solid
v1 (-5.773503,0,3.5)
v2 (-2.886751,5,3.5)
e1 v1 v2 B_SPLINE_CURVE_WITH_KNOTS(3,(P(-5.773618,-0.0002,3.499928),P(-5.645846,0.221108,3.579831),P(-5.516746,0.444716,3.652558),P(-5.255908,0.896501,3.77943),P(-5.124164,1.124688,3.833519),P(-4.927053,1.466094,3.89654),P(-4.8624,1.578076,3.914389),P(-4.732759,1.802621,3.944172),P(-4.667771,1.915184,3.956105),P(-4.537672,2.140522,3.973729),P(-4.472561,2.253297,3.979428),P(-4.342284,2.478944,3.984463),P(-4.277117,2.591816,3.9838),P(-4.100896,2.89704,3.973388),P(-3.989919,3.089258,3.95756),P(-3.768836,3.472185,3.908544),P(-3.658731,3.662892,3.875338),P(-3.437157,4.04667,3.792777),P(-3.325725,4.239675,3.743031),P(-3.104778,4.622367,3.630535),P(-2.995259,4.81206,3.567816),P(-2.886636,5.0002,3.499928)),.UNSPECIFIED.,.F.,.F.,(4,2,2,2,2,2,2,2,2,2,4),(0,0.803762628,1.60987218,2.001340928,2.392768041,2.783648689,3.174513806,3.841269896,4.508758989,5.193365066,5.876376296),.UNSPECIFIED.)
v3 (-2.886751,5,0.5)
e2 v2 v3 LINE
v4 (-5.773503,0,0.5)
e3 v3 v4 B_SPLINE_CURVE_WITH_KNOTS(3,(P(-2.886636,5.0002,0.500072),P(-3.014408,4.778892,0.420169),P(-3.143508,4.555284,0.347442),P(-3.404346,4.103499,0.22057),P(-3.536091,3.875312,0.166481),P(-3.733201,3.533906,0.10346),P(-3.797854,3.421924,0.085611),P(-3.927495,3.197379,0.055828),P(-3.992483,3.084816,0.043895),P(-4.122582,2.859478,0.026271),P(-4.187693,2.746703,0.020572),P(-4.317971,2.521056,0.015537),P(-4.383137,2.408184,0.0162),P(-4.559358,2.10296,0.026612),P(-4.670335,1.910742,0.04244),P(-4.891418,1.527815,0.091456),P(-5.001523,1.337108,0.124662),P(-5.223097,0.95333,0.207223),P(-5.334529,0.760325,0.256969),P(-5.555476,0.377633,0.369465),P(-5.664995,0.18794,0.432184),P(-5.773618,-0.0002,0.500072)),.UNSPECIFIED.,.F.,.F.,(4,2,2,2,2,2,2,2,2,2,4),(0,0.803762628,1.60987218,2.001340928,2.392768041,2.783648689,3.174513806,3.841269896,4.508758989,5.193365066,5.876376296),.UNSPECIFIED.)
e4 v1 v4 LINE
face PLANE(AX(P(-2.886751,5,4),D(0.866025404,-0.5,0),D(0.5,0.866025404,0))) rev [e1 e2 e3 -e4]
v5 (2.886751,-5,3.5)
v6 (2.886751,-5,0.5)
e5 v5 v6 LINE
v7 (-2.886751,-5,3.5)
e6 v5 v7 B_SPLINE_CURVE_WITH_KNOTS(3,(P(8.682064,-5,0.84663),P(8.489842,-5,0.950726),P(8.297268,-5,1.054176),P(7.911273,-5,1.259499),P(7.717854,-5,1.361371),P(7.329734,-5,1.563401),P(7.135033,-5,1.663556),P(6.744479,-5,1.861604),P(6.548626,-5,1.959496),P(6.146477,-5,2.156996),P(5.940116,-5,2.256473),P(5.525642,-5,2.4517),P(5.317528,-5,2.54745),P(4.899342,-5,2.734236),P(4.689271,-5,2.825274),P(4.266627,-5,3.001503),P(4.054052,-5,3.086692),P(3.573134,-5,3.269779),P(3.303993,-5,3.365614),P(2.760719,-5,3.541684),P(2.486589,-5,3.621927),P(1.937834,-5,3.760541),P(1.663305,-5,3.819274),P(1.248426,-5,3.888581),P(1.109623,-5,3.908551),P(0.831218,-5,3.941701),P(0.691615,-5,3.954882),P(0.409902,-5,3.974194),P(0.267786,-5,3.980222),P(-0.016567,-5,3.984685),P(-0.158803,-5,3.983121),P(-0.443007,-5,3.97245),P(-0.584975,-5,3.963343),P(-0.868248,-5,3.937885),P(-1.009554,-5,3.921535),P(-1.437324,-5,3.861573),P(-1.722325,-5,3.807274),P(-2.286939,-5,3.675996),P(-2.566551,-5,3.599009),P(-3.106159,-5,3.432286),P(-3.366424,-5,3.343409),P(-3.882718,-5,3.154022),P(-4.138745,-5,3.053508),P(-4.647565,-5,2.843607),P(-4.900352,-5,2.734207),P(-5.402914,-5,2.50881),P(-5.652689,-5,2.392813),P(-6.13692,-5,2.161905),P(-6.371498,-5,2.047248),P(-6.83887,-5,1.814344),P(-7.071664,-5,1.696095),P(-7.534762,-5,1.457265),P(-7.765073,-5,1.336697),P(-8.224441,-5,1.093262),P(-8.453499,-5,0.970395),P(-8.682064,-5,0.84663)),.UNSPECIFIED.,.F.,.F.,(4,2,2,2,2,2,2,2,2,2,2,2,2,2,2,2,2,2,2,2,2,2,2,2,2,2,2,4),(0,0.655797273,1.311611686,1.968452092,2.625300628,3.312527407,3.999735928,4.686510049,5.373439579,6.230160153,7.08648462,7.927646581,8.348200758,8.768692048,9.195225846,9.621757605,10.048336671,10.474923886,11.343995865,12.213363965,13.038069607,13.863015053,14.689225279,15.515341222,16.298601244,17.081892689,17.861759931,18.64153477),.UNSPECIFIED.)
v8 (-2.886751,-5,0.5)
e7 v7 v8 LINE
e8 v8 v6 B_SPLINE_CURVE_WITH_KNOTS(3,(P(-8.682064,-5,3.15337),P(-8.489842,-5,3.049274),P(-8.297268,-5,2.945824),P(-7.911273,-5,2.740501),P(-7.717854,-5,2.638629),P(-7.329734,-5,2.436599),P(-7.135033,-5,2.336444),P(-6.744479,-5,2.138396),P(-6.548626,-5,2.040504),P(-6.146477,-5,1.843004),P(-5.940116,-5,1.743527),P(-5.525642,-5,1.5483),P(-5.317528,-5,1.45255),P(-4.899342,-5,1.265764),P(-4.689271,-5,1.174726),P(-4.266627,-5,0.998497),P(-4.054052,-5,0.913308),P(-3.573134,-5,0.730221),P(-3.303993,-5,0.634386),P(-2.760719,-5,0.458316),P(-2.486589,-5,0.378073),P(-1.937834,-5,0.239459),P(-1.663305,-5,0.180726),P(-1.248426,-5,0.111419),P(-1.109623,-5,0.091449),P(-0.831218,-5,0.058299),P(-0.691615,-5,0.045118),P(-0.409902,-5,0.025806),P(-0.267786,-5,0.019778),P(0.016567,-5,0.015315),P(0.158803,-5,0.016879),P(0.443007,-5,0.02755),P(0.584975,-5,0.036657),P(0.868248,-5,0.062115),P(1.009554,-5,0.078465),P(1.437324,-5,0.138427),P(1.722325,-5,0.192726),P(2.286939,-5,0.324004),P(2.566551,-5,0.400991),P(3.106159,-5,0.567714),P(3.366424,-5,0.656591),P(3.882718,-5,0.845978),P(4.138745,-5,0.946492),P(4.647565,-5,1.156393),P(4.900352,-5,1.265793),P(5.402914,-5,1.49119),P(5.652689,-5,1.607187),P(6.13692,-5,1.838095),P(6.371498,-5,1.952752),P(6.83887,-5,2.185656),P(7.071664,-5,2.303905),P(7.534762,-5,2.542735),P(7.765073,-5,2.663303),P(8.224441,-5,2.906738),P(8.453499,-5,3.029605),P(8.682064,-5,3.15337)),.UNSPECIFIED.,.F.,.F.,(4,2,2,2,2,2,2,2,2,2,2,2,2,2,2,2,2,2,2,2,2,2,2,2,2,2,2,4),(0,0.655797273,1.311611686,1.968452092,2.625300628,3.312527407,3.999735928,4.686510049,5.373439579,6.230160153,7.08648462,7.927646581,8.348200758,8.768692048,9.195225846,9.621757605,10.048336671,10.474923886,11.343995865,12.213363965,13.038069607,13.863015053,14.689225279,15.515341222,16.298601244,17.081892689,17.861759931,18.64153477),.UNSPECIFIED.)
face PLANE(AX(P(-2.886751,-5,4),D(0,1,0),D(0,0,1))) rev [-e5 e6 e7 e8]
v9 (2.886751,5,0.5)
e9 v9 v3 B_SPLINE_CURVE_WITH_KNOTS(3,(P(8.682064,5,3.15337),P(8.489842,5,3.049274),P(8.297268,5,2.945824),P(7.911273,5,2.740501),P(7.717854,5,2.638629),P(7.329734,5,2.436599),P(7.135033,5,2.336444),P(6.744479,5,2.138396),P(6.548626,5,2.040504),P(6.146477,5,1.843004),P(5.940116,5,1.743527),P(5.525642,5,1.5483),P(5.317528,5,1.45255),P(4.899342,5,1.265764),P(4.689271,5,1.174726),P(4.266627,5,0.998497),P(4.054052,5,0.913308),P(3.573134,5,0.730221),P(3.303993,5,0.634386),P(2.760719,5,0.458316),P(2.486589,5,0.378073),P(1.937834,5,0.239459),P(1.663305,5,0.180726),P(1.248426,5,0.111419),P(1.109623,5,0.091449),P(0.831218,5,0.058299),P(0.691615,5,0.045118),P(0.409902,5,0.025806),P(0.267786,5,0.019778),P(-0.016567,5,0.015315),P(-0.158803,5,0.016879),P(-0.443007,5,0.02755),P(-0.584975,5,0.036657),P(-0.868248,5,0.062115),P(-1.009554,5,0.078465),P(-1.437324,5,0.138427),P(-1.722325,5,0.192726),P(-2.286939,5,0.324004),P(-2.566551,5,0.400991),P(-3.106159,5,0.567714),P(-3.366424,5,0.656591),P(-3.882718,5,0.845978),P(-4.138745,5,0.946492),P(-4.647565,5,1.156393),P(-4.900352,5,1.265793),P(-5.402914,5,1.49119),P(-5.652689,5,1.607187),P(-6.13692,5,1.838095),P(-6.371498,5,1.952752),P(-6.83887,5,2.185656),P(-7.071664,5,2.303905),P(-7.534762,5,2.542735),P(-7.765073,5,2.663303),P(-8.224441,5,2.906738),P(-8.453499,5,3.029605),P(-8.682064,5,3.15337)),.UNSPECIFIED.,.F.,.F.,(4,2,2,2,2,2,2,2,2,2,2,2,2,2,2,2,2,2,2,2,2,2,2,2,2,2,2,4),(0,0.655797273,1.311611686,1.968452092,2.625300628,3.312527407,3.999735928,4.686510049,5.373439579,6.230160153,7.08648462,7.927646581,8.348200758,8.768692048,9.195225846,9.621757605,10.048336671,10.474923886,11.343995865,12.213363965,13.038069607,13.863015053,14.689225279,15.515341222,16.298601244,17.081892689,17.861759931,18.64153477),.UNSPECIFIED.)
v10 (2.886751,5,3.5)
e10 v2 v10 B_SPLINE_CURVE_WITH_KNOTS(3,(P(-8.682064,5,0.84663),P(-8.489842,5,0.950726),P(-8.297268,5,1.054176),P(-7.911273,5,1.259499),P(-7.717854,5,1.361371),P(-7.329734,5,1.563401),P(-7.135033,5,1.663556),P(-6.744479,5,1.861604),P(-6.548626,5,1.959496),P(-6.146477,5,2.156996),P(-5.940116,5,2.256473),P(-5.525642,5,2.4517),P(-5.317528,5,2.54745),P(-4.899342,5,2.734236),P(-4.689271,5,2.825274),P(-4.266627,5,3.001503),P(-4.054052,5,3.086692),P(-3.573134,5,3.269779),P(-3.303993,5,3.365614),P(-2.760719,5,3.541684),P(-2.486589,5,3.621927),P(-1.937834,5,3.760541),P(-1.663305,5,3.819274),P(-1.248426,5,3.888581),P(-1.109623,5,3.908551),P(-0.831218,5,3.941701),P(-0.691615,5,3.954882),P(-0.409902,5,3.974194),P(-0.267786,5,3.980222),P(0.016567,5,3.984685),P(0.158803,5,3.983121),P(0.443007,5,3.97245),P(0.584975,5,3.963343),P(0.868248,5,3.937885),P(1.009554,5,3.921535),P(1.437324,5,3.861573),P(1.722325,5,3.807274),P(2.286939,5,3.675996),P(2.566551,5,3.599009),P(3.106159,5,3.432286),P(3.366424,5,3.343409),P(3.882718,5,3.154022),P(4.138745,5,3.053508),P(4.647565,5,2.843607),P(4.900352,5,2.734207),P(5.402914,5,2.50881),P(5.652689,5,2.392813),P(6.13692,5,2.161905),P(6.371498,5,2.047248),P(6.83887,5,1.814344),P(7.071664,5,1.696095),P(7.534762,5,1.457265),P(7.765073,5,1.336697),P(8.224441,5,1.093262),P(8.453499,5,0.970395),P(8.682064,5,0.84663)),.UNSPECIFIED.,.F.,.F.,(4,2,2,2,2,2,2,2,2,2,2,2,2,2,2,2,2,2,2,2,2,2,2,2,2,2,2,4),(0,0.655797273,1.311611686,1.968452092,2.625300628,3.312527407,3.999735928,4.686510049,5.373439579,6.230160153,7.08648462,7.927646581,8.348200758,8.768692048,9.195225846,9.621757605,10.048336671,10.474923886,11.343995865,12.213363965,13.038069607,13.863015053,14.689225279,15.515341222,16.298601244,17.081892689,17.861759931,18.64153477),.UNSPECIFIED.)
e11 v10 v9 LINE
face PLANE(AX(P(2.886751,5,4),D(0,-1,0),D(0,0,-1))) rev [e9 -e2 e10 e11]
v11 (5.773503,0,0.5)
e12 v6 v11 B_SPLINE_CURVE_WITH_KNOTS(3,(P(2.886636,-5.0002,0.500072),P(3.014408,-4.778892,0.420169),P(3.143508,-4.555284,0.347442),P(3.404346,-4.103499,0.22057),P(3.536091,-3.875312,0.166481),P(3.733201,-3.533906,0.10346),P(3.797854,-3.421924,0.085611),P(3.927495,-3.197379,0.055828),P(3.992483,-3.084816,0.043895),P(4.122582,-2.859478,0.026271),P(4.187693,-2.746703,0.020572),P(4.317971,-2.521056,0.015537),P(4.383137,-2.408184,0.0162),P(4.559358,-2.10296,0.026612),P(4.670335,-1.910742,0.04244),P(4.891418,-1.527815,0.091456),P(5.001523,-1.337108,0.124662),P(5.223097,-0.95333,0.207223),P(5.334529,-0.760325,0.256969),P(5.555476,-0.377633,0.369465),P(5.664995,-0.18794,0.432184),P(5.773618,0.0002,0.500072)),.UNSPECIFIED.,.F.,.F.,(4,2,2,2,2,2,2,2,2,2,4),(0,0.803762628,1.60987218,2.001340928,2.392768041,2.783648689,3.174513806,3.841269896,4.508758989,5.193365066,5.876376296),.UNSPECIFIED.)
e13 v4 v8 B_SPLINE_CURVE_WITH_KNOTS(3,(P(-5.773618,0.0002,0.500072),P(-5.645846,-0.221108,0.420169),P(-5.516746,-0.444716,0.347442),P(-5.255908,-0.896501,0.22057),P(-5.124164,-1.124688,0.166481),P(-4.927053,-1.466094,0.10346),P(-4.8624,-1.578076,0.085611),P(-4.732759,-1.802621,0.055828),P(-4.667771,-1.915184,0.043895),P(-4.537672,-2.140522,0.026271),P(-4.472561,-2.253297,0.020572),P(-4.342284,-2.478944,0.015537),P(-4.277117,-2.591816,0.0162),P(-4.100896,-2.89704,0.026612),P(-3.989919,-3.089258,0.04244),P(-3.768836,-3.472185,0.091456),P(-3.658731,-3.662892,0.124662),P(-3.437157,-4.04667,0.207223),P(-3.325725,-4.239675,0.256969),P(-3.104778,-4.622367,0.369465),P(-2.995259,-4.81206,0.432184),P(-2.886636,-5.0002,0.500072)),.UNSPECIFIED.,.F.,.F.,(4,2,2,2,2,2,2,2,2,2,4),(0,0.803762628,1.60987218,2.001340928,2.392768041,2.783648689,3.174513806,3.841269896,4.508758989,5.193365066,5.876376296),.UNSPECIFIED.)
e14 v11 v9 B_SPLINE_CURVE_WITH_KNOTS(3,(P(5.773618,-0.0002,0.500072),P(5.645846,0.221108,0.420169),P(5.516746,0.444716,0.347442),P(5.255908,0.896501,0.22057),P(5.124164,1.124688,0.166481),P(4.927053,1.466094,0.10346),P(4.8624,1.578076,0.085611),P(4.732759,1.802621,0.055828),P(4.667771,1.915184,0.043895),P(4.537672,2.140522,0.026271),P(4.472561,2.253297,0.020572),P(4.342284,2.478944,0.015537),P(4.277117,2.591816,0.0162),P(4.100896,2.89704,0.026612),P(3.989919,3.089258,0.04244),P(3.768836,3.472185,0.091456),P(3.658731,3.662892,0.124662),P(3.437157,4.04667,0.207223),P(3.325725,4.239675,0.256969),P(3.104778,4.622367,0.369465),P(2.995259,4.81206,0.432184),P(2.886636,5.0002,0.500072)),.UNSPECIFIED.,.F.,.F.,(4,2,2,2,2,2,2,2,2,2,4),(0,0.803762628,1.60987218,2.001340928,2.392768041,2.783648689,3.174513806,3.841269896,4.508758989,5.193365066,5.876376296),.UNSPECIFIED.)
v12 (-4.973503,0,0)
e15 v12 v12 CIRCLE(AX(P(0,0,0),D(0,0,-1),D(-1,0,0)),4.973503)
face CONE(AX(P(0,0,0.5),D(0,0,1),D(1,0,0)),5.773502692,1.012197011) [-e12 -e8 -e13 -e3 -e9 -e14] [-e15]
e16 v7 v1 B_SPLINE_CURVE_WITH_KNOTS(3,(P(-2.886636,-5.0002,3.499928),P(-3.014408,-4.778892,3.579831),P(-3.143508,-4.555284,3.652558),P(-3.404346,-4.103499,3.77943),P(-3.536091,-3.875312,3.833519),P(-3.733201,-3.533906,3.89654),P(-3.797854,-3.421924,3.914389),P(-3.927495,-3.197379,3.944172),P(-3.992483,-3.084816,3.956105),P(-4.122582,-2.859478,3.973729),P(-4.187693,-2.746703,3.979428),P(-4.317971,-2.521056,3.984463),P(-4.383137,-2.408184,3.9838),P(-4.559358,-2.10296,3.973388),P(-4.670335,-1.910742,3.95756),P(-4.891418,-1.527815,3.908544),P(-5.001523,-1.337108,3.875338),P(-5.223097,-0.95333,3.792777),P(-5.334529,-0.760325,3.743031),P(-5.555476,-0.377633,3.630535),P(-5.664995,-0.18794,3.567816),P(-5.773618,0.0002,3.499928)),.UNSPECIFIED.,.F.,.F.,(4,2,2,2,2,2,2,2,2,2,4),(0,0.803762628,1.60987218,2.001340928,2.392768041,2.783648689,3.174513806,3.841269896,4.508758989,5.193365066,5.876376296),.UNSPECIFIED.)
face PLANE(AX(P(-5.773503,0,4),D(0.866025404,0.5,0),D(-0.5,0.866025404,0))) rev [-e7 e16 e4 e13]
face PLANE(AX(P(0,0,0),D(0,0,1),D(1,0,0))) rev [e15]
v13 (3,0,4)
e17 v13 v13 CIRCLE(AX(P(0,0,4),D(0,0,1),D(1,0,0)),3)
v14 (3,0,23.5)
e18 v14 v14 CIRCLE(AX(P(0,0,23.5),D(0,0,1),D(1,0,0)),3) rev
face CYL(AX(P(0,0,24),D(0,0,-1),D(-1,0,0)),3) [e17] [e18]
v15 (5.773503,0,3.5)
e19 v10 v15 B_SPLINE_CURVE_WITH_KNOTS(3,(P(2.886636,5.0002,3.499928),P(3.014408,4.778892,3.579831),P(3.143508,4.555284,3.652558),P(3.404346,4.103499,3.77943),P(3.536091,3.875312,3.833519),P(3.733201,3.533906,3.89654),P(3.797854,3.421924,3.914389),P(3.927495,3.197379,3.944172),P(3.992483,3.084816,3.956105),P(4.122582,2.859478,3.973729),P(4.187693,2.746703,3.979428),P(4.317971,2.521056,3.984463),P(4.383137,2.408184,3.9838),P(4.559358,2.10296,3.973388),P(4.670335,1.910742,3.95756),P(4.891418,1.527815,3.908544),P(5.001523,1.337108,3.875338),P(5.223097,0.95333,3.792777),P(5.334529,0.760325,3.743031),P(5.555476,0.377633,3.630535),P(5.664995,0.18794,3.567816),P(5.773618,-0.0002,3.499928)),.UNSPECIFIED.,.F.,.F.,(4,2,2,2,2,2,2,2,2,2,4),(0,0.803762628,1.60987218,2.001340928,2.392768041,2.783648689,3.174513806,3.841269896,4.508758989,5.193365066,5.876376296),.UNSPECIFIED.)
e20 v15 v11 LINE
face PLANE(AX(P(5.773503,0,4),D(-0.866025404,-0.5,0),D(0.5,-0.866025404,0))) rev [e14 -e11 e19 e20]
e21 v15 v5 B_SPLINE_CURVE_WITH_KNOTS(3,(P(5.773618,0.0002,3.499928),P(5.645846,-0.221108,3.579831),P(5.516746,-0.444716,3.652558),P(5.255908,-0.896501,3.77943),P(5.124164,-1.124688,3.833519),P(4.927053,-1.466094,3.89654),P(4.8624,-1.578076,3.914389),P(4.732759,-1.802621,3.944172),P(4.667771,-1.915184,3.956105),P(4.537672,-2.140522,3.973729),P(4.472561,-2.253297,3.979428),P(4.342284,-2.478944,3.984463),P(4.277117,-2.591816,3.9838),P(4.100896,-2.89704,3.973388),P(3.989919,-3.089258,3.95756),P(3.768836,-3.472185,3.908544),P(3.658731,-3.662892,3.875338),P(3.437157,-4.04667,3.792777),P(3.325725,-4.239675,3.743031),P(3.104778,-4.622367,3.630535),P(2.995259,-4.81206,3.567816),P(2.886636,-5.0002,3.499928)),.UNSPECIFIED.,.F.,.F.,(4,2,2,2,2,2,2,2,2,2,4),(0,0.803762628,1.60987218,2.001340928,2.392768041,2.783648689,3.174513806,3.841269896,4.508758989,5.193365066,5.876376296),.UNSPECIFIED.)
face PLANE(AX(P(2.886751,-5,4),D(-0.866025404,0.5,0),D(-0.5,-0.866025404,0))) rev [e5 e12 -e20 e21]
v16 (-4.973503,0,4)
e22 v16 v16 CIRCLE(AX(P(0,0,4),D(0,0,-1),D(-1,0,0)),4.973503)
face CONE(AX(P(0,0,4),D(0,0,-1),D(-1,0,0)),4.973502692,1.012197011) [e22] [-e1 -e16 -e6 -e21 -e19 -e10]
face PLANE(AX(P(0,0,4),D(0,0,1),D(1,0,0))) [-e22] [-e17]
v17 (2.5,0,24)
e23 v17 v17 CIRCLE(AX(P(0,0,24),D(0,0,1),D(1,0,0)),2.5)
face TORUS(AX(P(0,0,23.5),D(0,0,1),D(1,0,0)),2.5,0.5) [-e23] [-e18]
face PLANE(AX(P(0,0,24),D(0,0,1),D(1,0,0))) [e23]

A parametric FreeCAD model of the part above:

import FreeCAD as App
import Part
import Sketcher
Q = App.Units.Quantity


def edges_at(feature, points):
    """Names of the edges that pass closest to the given points."""
    edges = feature.Shape.Edges
    near = lambda p: min(range(len(edges)), key=lambda i: edges[i].distToShape(Part.Vertex(*p))[0])
    return sorted({f"Edge{near(p) + 1}" for p in points})


def add_polygon(sketch, points):
    """Adds a closed chain of lines whose ends are joined by coincident constraints."""
    first, n = sketch.GeometryCount, len(points)
    for a, b in zip(points, points[1:] + points[:1]):
        sketch.addGeometry(Part.LineSegment(App.Vector(*a, 0), App.Vector(*b, 0)), False)
    for i in range(n):
        sketch.addConstraint(Sketcher.Constraint("Coincident", first + i, 2, first + (i + 1) % n, 1))

doc = App.newDocument("Part")
body = doc.addObject("PartDesign::Body", "Body")

sketch1 = body.newObject("Sketcher::SketchObject", "Sketch")
sketch1.AttachmentSupport = (doc.getObject("XY_Plane"), [""])
sketch1.MapMode = "FlatFace"
add_polygon(sketch1, [(5.773503, 0), (2.886751, 5), (-2.886751, 5), (-5.773503, 0), (-2.886751, -5), (2.886751, -5)])
sketch1.addConstraint(Sketcher.Constraint("Horizontal", 1))
sketch1.addConstraint(Sketcher.Constraint("Horizontal", 4))
sketch1.addConstraint(Sketcher.Constraint("Symmetric", 0, 2, 3, 2, -1, 1))
sketch1.addConstraint(Sketcher.Constraint("Symmetric", 2, 2, 5, 2, -1, 1))
sketch1.addConstraint(Sketcher.Constraint("PointOnObject", 2, 2, -1))
sketch1.addConstraint(Sketcher.Constraint("Parallel", 2, 5))
sketch1.addConstraint(Sketcher.Constraint("Vertical", 1, 2, 3, 2))
sketch1.addConstraint(Sketcher.Constraint("Angle", 0, Q("120 deg")))
sketch1.addConstraint(Sketcher.Constraint("DistanceY", -1, 1, 0, 2, 5.0))
sketch1.addConstraint(Sketcher.Constraint("DistanceX", 1, 2, 1, 1, 5.773503))
pad1 = body.newObject("PartDesign::Pad", "Pad")
pad1.Profile = sketch1
pad1.Length = 4

sketch2 = body.newObject("Sketcher::SketchObject", "Sketch001")
sketch2.AttachmentSupport = (doc.getObject("XZ_Plane"), [""])
sketch2.MapMode = "FlatFace"
add_polygon(sketch2, [(-5.773503, 0), (-5.773503, 0.5), (-4.973503, 0)])
add_polygon(sketch2, [(-5.773503, 3.5), (-5.773503, 4), (-4.973503, 4)])
sketch2.addConstraint(Sketcher.Constraint("Vertical", 0))
sketch2.addConstraint(Sketcher.Constraint("Horizontal", 2))
sketch2.addConstraint(Sketcher.Constraint("Vertical", 3))
sketch2.addConstraint(Sketcher.Constraint("Horizontal", 4))
sketch2.addConstraint(Sketcher.Constraint("PointOnObject", 1, 2, -1))
sketch2.addConstraint(Sketcher.Constraint("Vertical", 2, 2, 3, 2))
sketch2.addConstraint(Sketcher.Constraint("Vertical", 1, 2, 4, 2))
sketch2.addConstraint(Sketcher.Constraint("Equal", 0, 3))
sketch2.addConstraint(Sketcher.Constraint("DistanceX", 2, 2, 2, 1, 0.8))
sketch2.addConstraint(Sketcher.Constraint("DistanceY", 0, 1, 0, 2, 0.5))
sketch2.addConstraint(Sketcher.Constraint("DistanceY", -1, 1, 3, 2, 4.0))
sketch2.addConstraint(Sketcher.Constraint("DistanceX", 0, 2, -1, 1, 5.773503))
groove = body.newObject("PartDesign::Groove", "Groove")
groove.Profile = sketch2
groove.ReferenceAxis = (sketch2, ["V_Axis"])
groove.Angle = 360

sketch3 = body.newObject("Sketcher::SketchObject", "Sketch002")
sketch3.AttachmentSupport = (doc.getObject("XY_Plane"), [""])
sketch3.MapMode = "FlatFace"
sketch3.AttachmentOffset = App.Placement(App.Vector(0, 0, 4), App.Rotation())
sketch3.addGeometry(Part.Circle(App.Vector(0, 0, 0), App.Vector(0, 0, 1), 3), False)
sketch3.addConstraint(Sketcher.Constraint("Coincident", 0, 3, -1, 1))
sketch3.addConstraint(Sketcher.Constraint("Diameter", 0, 6.0))
pad2 = body.newObject("PartDesign::Pad", "Pad001")
pad2.Profile = sketch3
pad2.Length = 20
doc.recompute()

fillet = body.newObject("PartDesign::Fillet", "Fillet")
fillet.Base = (pad2, edges_at(pad2, [(-3, 0, 24)]))
fillet.Radius = 0.5

doc.recompute()
